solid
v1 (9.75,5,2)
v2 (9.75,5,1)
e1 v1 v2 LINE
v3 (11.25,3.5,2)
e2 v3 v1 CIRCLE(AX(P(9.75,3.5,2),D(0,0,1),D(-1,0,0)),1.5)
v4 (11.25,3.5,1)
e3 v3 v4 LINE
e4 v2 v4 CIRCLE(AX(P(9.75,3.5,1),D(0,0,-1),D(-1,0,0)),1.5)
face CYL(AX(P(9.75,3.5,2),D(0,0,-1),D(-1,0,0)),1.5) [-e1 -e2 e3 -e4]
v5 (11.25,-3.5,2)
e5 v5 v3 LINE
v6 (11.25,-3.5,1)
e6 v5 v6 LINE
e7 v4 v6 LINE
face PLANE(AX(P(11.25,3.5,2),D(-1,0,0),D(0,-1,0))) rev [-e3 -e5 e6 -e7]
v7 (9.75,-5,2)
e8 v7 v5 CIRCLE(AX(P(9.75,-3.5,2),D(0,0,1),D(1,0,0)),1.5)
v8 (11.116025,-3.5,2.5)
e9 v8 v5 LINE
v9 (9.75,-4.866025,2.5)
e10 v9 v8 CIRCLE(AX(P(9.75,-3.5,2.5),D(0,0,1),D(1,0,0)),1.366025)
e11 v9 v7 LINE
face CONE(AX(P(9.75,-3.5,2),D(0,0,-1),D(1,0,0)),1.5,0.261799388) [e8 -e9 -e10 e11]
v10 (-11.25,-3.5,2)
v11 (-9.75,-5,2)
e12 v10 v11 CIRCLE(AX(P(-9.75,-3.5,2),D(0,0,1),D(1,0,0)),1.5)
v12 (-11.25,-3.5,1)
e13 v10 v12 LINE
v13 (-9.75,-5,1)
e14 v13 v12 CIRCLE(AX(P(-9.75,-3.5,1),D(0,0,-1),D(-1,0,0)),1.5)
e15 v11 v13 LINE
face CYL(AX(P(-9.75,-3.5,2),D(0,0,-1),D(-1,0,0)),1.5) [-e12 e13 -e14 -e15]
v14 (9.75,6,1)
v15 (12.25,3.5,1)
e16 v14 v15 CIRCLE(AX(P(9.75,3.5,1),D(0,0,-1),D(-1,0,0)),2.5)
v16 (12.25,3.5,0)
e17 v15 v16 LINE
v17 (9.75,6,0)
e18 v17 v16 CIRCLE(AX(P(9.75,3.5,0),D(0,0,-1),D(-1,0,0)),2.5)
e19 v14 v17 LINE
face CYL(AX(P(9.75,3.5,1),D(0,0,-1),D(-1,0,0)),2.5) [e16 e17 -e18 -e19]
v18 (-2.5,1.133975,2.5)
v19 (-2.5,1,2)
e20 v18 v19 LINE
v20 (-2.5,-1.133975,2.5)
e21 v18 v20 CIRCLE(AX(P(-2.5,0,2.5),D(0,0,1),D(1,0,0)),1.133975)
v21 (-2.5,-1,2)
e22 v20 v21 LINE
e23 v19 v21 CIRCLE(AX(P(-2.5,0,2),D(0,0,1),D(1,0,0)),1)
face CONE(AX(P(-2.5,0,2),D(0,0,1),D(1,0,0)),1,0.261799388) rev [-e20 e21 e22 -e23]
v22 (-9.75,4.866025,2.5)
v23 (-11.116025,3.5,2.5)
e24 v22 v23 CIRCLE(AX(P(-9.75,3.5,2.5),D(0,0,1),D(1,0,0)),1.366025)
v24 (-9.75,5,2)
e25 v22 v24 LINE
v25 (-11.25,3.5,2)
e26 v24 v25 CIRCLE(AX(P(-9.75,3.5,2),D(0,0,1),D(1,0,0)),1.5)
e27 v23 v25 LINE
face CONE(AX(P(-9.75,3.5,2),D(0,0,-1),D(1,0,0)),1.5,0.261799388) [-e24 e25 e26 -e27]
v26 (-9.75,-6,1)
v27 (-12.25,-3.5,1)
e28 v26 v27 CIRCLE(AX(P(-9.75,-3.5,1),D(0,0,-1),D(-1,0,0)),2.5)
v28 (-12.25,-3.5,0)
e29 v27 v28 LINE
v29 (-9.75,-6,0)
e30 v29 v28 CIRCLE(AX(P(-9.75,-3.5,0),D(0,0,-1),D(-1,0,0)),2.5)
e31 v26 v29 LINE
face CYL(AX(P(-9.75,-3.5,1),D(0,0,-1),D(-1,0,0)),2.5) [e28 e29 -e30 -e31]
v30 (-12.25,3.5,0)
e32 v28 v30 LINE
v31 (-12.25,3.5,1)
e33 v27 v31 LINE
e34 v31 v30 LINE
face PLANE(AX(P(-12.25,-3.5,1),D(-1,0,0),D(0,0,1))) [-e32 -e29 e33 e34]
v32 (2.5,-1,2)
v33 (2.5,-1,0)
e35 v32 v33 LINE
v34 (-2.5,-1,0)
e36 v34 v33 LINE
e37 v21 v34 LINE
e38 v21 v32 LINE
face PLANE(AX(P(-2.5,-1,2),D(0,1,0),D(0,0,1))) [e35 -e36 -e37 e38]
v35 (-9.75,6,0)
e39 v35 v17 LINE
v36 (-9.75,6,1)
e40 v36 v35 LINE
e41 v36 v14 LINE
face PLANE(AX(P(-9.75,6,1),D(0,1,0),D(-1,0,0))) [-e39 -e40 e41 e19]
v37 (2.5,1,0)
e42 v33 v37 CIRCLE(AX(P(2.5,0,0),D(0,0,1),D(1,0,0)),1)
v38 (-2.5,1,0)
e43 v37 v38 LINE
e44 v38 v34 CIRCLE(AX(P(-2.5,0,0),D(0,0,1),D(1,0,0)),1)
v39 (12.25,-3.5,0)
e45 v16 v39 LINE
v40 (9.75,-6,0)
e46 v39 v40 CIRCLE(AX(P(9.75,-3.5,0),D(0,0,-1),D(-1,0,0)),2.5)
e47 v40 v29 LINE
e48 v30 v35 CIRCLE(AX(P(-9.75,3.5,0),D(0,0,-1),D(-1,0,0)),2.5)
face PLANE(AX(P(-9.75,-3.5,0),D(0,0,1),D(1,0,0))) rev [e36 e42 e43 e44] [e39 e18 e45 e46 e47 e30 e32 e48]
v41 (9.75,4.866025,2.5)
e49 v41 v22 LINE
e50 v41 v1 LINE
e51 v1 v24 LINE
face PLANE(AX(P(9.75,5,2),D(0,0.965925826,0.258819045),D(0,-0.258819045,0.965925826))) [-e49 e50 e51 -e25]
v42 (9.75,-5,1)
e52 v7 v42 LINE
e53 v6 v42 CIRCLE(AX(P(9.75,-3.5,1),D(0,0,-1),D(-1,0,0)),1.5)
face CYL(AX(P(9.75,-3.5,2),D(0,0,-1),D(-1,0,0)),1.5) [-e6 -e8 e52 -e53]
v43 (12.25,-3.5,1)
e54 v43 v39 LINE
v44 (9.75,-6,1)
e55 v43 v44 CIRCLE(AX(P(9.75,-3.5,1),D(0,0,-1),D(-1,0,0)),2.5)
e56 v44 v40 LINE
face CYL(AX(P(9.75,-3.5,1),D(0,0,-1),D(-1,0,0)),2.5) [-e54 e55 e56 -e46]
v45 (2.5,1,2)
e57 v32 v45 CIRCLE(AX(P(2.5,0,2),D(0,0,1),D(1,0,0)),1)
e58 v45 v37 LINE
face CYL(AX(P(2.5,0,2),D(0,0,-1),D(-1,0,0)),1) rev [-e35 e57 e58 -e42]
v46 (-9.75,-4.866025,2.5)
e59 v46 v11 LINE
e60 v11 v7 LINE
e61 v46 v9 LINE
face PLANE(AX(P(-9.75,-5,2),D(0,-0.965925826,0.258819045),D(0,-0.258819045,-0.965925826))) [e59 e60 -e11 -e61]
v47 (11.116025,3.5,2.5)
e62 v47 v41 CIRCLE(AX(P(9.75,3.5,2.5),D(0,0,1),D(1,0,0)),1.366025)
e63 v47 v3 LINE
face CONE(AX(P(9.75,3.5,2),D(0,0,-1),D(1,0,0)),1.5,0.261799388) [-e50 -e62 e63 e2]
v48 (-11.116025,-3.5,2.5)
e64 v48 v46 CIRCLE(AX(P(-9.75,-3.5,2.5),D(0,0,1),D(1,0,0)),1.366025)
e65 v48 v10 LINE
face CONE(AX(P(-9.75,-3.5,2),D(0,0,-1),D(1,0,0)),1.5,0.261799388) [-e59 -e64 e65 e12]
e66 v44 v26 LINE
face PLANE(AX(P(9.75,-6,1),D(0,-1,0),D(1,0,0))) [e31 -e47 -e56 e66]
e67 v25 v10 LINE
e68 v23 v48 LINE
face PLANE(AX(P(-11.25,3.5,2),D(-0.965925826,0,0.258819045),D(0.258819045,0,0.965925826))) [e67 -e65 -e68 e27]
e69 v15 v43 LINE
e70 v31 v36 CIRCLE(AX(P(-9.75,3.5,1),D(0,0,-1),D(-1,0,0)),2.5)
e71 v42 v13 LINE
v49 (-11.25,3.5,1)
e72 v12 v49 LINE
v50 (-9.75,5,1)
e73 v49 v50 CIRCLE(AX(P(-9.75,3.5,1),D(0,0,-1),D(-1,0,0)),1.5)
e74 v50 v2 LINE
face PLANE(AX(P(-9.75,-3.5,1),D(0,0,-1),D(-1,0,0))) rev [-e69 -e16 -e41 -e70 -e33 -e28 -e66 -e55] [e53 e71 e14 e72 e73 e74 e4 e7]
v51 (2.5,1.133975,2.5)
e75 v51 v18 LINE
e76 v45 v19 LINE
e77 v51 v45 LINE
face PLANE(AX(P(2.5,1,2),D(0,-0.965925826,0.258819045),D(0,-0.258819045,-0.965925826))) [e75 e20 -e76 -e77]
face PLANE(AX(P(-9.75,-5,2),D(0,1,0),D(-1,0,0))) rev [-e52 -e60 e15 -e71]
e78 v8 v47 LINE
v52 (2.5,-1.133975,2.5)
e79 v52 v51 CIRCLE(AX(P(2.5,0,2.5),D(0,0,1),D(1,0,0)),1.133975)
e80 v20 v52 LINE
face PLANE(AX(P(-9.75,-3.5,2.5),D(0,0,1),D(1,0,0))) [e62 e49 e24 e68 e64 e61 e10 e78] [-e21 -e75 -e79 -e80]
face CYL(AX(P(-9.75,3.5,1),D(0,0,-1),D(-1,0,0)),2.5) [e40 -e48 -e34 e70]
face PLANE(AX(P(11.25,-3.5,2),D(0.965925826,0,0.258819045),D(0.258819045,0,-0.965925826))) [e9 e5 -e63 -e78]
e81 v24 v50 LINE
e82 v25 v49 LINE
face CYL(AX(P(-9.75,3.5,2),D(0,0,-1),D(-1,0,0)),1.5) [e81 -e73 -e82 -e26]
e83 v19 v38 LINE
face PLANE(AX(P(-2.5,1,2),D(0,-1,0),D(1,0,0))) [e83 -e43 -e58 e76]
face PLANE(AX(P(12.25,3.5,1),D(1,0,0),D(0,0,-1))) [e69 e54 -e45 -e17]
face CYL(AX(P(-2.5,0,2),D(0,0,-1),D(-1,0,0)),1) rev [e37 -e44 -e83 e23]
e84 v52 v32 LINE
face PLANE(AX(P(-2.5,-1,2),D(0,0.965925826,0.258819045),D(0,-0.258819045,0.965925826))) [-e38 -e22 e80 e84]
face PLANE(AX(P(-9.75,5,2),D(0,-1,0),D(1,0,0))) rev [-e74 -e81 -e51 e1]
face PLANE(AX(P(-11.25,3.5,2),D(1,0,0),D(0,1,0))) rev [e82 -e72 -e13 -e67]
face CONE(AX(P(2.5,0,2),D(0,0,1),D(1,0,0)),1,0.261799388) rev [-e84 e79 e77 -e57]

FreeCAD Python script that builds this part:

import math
import FreeCAD as App
import Part
import Sketcher

V = App.Vector


def faces_at(feature, points):
    """Names of the faces that lie closest to the given points."""
    faces = feature.Shape.Faces
    near = lambda p: min(range(len(faces)), key=lambda i: faces[i].distToShape(Part.Vertex(*p))[0])
    return sorted({f"Face{near(p) + 1}" for p in points})

doc = App.newDocument("Part")
params = doc.addObject("Spreadsheet::Sheet", "Params")
for row, (alias, value) in enumerate([
    ("sketch1_radius", "1 mm"),
    ("sketch1_radius2", "1.5 mm"),
    ("sketch1_width", "5 mm"),
    ("sketch1_height", "7 mm"),
    ("sketch1_width2", "19.5 mm"),
    ("pad1_length", "2 mm"),
    ("sketch2_radius", "1 mm"),
    ("sketch2_radius2", "1.5 mm"),
    ("sketch2_width", "5 mm"),
    ("sketch2_height", "7 mm"),
    ("sketch2_width2", "19.5 mm"),
    ("pad2_length", "0.5 mm"),
    ("draft_angle", "15 deg"),
    ("sketch3_radius", "2.5 mm"),
    ("sketch3_radius2", "1.5 mm"),
    ("sketch3_height", "7 mm"),
    ("sketch3_width", "19.5 mm"),
    ("pad3_length", "1 mm"),
], start=1):
    params.set(f"A{row}", alias)
    params.set(f"B{row}", "=" + value)
    params.setAlias(f"B{row}", alias)

body = doc.addObject("PartDesign::Body", "Body")

# Sketch on XY plane
sketch1 = body.newObject("Sketcher::SketchObject", "Sketch")
sketch1.AttachmentSupport = (doc.getObject("XY_Plane"), [""])
sketch1.MapMode = "FlatFace"
sketch1.addGeometry([
    Part.LineSegment(V(9.75, 5, 0), V(-9.75, 5, 0)),  # 0
    Part.ArcOfCircle(Part.Circle(V(-9.75, 3.5, 0), V(0, 0, 1), 1.5), math.radians(90), math.radians(180)),  # 1
    Part.LineSegment(V(-11.25, 3.5, 0), V(-11.25, -3.5, 0)),  # 2
    Part.ArcOfCircle(Part.Circle(V(-9.75, -3.5, 0), V(0, 0, 1), 1.5), math.radians(180), math.radians(270)),  # 3
    Part.LineSegment(V(-9.75, -5, 0), V(9.75, -5, 0)),  # 4
    Part.ArcOfCircle(Part.Circle(V(9.75, -3.5, 0), V(0, 0, 1), 1.5), math.radians(-90), math.radians(0)),  # 5
    Part.LineSegment(V(11.25, -3.5, 0), V(11.25, 3.5, 0)),  # 6
    Part.ArcOfCircle(Part.Circle(V(9.75, 3.5, 0), V(0, 0, 1), 1.5), math.radians(0), math.radians(90)),  # 7
    Part.LineSegment(V(-2.5, 1, 0), V(2.5, 1, 0)),  # 8
    Part.ArcOfCircle(Part.Circle(V(2.5, 0, 0), V(0, 0, 1), 1), math.radians(-90), math.radians(90)),  # 9
    Part.LineSegment(V(2.5, -1, 0), V(-2.5, -1, 0)),  # 10
    Part.ArcOfCircle(Part.Circle(V(-2.5, 0, 0), V(0, 0, 1), 1), math.radians(90), math.radians(270)),  # 11
], False)
sketch1.addConstraint([
    Sketcher.Constraint("Tangent", 0, 2, 1, 1),
    Sketcher.Constraint("Tangent", 1, 2, 2, 1),
    Sketcher.Constraint("Tangent", 2, 2, 3, 1),
    Sketcher.Constraint("Tangent", 3, 2, 4, 1),
    Sketcher.Constraint("Tangent", 4, 2, 5, 1),
    Sketcher.Constraint("Tangent", 5, 2, 6, 1),
    Sketcher.Constraint("Tangent", 6, 2, 7, 1),
    Sketcher.Constraint("Tangent", 7, 2, 0, 1),
    Sketcher.Constraint("Tangent", 8, 2, 9, 2),
    Sketcher.Constraint("Tangent", 9, 1, 10, 1),
    Sketcher.Constraint("Tangent", 10, 2, 11, 2),
    Sketcher.Constraint("Tangent", 11, 1, 8, 1),
    Sketcher.Constraint("Horizontal", 0),
    Sketcher.Constraint("Vertical", 2),
    Sketcher.Constraint("Horizontal", 4),
    Sketcher.Constraint("Vertical", 6),
    Sketcher.Constraint("Horizontal", 8),
    Sketcher.Constraint("Horizontal", 10),
    Sketcher.Constraint("Equal", 1, 3),
    Sketcher.Constraint("Equal", 3, 5),
    Sketcher.Constraint("Equal", 5, 7),
    Sketcher.Constraint("Symmetric", 1, 3, 5, 3, -1, 1),
    Sketcher.Constraint("Symmetric", 9, 3, 11, 3, -1, 1),
    Sketcher.Constraint("Radius", 9, 1.0),
    Sketcher.Constraint("Radius", 1, 1.5),
    Sketcher.Constraint("DistanceX", 8, 1, 8, 2, 5.0),
    Sketcher.Constraint("DistanceY", 2, 2, 2, 1, 7.0),
    Sketcher.Constraint("DistanceX", 0, 2, 0, 1, 19.5),
])
sketch1.setExpression("Constraints[23]", "Params.sketch1_radius")
sketch1.setExpression("Constraints[24]", "Params.sketch1_radius2")
sketch1.setExpression("Constraints[25]", "Params.sketch1_width")
sketch1.setExpression("Constraints[26]", "Params.sketch1_height")
sketch1.setExpression("Constraints[27]", "Params.sketch1_width2")
pad1 = body.newObject("PartDesign::Pad", "Pad")
pad1.Profile = sketch1
pad1.setExpression("Length", "Params.pad1_length")
body2 = doc.addObject("PartDesign::Body", "Body001")

# Sketch on XY plane
sketch2 = body2.newObject("Sketcher::SketchObject", "Sketch001")
sketch2.AttachmentSupport = (doc.getObject("XY_Plane001"), [""])
sketch2.MapMode = "FlatFace"
sketch2.AttachmentOffset = App.Placement(V(0, 0, 2), App.Rotation())
sketch2.addGeometry([
    Part.LineSegment(V(-9.75, -5, 0), V(9.75, -5, 0)),  # 0
    Part.ArcOfCircle(Part.Circle(V(9.75, -3.5, 0), V(0, 0, 1), 1.5), math.radians(-90), math.radians(0)),  # 1
    Part.LineSegment(V(11.25, -3.5, 0), V(11.25, 3.5, 0)),  # 2
    Part.ArcOfCircle(Part.Circle(V(9.75, 3.5, 0), V(0, 0, 1), 1.5), math.radians(0), math.radians(90)),  # 3
    Part.LineSegment(V(9.75, 5, 0), V(-9.75, 5, 0)),  # 4
    Part.ArcOfCircle(Part.Circle(V(-9.75, 3.5, 0), V(0, 0, 1), 1.5), math.radians(90), math.radians(180)),  # 5
    Part.LineSegment(V(-11.25, 3.5, 0), V(-11.25, -3.5, 0)),  # 6
    Part.ArcOfCircle(Part.Circle(V(-9.75, -3.5, 0), V(0, 0, 1), 1.5), math.radians(180), math.radians(270)),  # 7
    Part.LineSegment(V(-2.5, 1, 0), V(2.5, 1, 0)),  # 8
    Part.ArcOfCircle(Part.Circle(V(2.5, 0, 0), V(0, 0, 1), 1), math.radians(-90), math.radians(90)),  # 9
    Part.LineSegment(V(2.5, -1, 0), V(-2.5, -1, 0)),  # 10
    Part.ArcOfCircle(Part.Circle(V(-2.5, 0, 0), V(0, 0, 1), 1), math.radians(90), math.radians(270)),  # 11
], False)
sketch2.addConstraint([
    Sketcher.Constraint("Tangent", 0, 2, 1, 1),
    Sketcher.Constraint("Tangent", 1, 2, 2, 1),
    Sketcher.Constraint("Tangent", 2, 2, 3, 1),
    Sketcher.Constraint("Tangent", 3, 2, 4, 1),
    Sketcher.Constraint("Tangent", 4, 2, 5, 1),
    Sketcher.Constraint("Tangent", 5, 2, 6, 1),
    Sketcher.Constraint("Tangent", 6, 2, 7, 1),
    Sketcher.Constraint("Tangent", 7, 2, 0, 1),
    Sketcher.Constraint("Tangent", 8, 2, 9, 2),
    Sketcher.Constraint("Tangent", 9, 1, 10, 1),
    Sketcher.Constraint("Tangent", 10, 2, 11, 2),
    Sketcher.Constraint("Tangent", 11, 1, 8, 1),
    Sketcher.Constraint("Horizontal", 0),
    Sketcher.Constraint("Vertical", 2),
    Sketcher.Constraint("Horizontal", 4),
    Sketcher.Constraint("Vertical", 6),
    Sketcher.Constraint("Horizontal", 8),
    Sketcher.Constraint("Horizontal", 10),
    Sketcher.Constraint("Equal", 1, 3),
    Sketcher.Constraint("Equal", 3, 5),
    Sketcher.Constraint("Equal", 5, 7),
    Sketcher.Constraint("Symmetric", 1, 3, 5, 3, -1, 1),
    Sketcher.Constraint("Symmetric", 9, 3, 11, 3, -1, 1),
    Sketcher.Constraint("Radius", 9, 1.0),
    Sketcher.Constraint("Radius", 1, 1.5),
    Sketcher.Constraint("DistanceX", 8, 1, 8, 2, 5.0),
    Sketcher.Constraint("DistanceY", 2, 1, 2, 2, 7.0),
    Sketcher.Constraint("DistanceX", 0, 1, 0, 2, 19.5),
])
sketch2.setExpression("Constraints[23]", "Params.sketch2_radius")
sketch2.setExpression("Constraints[24]", "Params.sketch2_radius2")
sketch2.setExpression("Constraints[25]", "Params.sketch2_width")
sketch2.setExpression("Constraints[26]", "Params.sketch2_height")
sketch2.setExpression("Constraints[27]", "Params.sketch2_width2")
pad2 = body2.newObject("PartDesign::Pad", "Pad001")
pad2.Profile = sketch2
pad2.setExpression("Length", "Params.pad2_length")
doc.recompute()

datumplane = body2.newObject("PartDesign::Plane", "DatumPlane")
datumplane.AttachmentSupport = (doc.getObject("XY_Plane001"), [""])
datumplane.MapMode = "FlatFace"
datumplane.AttachmentOffset = App.Placement(V(0, 0, 2), App.Rotation())
draft = body2.newObject("PartDesign::Draft", "Draft")
draft.Base = (pad2, faces_at(pad2, [
    (0, -5, 2.25),
    (10.811, -4.561, 2.25),
    (11.25, 0, 2.25),
    (10.811, 4.561, 2.25),
    (0, 5, 2.25),
    (-10.811, 4.561, 2.25),
    (-11.25, 0, 2.25),
    (-10.811, -4.561, 2.25),
    (-3.5, 0, 2.25),
    (0, 1, 2.25),
    (3.5, 0, 2.25),
    (0, -1, 2.25),
]))
draft.NeutralPlane = (datumplane, [""])
draft.setExpression("Angle", "Params.draft_angle")
draft.Reversed = False
doc.recompute()

boolean = body.newObject("PartDesign::Boolean", "Boolean")
boolean.Type = "Fuse"
boolean.addObjects([body2])

# Sketch on XY plane
sketch3 = body.newObject("Sketcher::SketchObject", "Sketch002")
sketch3.AttachmentSupport = (doc.getObject("XY_Plane"), [""])
sketch3.MapMode = "FlatFace"
sketch3.addGeometry([
    Part.LineSegment(V(-12.25, -3.5, 0), V(-12.25, 3.5, 0)),  # 0
    Part.ArcOfCircle(Part.Circle(V(-9.75, 3.5, 0), V(0, 0, 1), 2.5), math.radians(90), math.radians(180)),  # 1
    Part.LineSegment(V(-9.75, 6, 0), V(9.75, 6, 0)),  # 2
    Part.ArcOfCircle(Part.Circle(V(9.75, 3.5, 0), V(0, 0, 1), 2.5), math.radians(0), math.radians(90)),  # 3
    Part.LineSegment(V(12.25, 3.5, 0), V(12.25, -3.5, 0)),  # 4
    Part.ArcOfCircle(Part.Circle(V(9.75, -3.5, 0), V(0, 0, 1), 2.5), math.radians(-90), math.radians(0)),  # 5
    Part.LineSegment(V(9.75, -6, 0), V(-9.75, -6, 0)),  # 6
    Part.ArcOfCircle(Part.Circle(V(-9.75, -3.5, 0), V(0, 0, 1), 2.5), math.radians(180), math.radians(270)),  # 7
    Part.LineSegment(V(-11.25, 3.5, 0), V(-11.25, -3.5, 0)),  # 8
    Part.ArcOfCircle(Part.Circle(V(-9.75, -3.5, 0), V(0, 0, 1), 1.5), math.radians(180), math.radians(270)),  # 9
    Part.LineSegment(V(-9.75, -5, 0), V(9.75, -5, 0)),  # 10
    Part.ArcOfCircle(Part.Circle(V(9.75, -3.5, 0), V(0, 0, 1), 1.5), math.radians(-90), math.radians(0)),  # 11
    Part.LineSegment(V(11.25, -3.5, 0), V(11.25, 3.5, 0)),  # 12
    Part.ArcOfCircle(Part.Circle(V(9.75, 3.5, 0), V(0, 0, 1), 1.5), math.radians(0), math.radians(90)),  # 13
    Part.LineSegment(V(9.75, 5, 0), V(-9.75, 5, 0)),  # 14
    Part.ArcOfCircle(Part.Circle(V(-9.75, 3.5, 0), V(0, 0, 1), 1.5), math.radians(90), math.radians(180)),  # 15
], False)
sketch3.addConstraint([
    Sketcher.Constraint("Tangent", 0, 2, 1, 2),
    Sketcher.Constraint("Tangent", 1, 1, 2, 1),
    Sketcher.Constraint("Tangent", 2, 2, 3, 2),
    Sketcher.Constraint("Tangent", 3, 1, 4, 1),
    Sketcher.Constraint("Tangent", 4, 2, 5, 2),
    Sketcher.Constraint("Tangent", 5, 1, 6, 1),
    Sketcher.Constraint("Tangent", 6, 2, 7, 2),
    Sketcher.Constraint("Tangent", 7, 1, 0, 1),
    Sketcher.Constraint("Tangent", 8, 2, 9, 1),
    Sketcher.Constraint("Tangent", 9, 2, 10, 1),
    Sketcher.Constraint("Tangent", 10, 2, 11, 1),
    Sketcher.Constraint("Tangent", 11, 2, 12, 1),
    Sketcher.Constraint("Tangent", 12, 2, 13, 1),
    Sketcher.Constraint("Tangent", 13, 2, 14, 1),
    Sketcher.Constraint("Tangent", 14, 2, 15, 1),
    Sketcher.Constraint("Tangent", 15, 2, 8, 1),
    Sketcher.Constraint("Vertical", 0),
    Sketcher.Constraint("Horizontal", 2),
    Sketcher.Constraint("Vertical", 4),
    Sketcher.Constraint("Horizontal", 6),
    Sketcher.Constraint("Vertical", 8),
    Sketcher.Constraint("Horizontal", 10),
    Sketcher.Constraint("Vertical", 12),
    Sketcher.Constraint("Horizontal", 14),
    Sketcher.Constraint("Coincident", 9, 3, 7, 3),
    Sketcher.Constraint("Coincident", 11, 3, 5, 3),
    Sketcher.Constraint("Coincident", 13, 3, 3, 3),
    Sketcher.Constraint("Equal", 1, 3),
    Sketcher.Constraint("Equal", 3, 5),
    Sketcher.Constraint("Equal", 5, 7),
    Sketcher.Constraint("Equal", 13, 15),
    Sketcher.Constraint("Symmetric", 1, 3, 5, 3, -1, 1),
    Sketcher.Constraint("Radius", 1, 2.5),
    Sketcher.Constraint("Radius", 9, 1.5),
    Sketcher.Constraint("DistanceY", 0, 1, 0, 2, 7.0),
    Sketcher.Constraint("DistanceX", 2, 1, 2, 2, 19.5),
])
sketch3.setExpression("Constraints[32]", "Params.sketch3_radius")
sketch3.setExpression("Constraints[33]", "Params.sketch3_radius2")
sketch3.setExpression("Constraints[34]", "Params.sketch3_height")
sketch3.setExpression("Constraints[35]", "Params.sketch3_width")
pad3 = body.newObject("PartDesign::Pad", "Pad002")
pad3.Profile = sketch3
pad3.setExpression("Length", "Params.pad3_length")

doc.recompute()
